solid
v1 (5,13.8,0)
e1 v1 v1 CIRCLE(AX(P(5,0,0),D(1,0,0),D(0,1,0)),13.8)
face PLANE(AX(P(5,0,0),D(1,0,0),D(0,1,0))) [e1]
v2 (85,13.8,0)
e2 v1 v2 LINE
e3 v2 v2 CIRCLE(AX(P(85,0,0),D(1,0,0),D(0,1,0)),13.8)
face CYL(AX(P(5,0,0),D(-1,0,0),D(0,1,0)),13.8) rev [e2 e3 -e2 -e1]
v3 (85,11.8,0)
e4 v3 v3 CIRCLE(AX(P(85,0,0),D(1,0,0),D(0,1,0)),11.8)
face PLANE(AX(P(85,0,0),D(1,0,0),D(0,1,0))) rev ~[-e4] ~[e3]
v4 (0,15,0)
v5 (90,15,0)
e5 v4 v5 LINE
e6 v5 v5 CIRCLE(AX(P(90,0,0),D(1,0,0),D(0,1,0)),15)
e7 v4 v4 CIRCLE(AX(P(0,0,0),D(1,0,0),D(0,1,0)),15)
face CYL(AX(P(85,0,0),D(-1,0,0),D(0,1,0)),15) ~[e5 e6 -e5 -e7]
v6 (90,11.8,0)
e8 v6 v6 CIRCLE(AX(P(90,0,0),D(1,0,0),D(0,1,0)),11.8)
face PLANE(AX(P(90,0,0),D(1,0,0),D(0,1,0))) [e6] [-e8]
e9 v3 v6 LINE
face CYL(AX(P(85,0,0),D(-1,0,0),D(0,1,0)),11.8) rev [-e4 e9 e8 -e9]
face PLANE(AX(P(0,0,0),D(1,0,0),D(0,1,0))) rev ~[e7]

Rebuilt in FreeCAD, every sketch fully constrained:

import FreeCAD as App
import Part
import Sketcher
Q = App.Units.Quantity

doc = App.newDocument("Part")
body = doc.addObject("PartDesign::Body", "Body")

sketch1 = body.newObject("Sketcher::SketchObject", "Sketch")
sketch1.AttachmentSupport = (doc.getObject("YZ_Plane"), [""])
sketch1.MapMode = "FlatFace"
sketch1.addGeometry(Part.Circle(App.Vector(0, 0, 0), App.Vector(0, 0, 1), 15), False)
sketch1.addConstraint([
    Sketcher.Constraint("Coincident", 0, 3, -1, 1),
    Sketcher.Constraint("Diameter", 0, Q("30 mm")),
])
pad1 = body.newObject("PartDesign::Pad", "Pad")
pad1.Profile = sketch1
pad1.Length = 5

sketch2 = body.newObject("Sketcher::SketchObject", "Sketch001")
sketch2.AttachmentSupport = (doc.getObject("YZ_Plane"), [""])
sketch2.MapMode = "FlatFace"
sketch2.AttachmentOffset = App.Placement(App.Vector(0, 0, 5), App.Rotation())
sketch2.addGeometry([
    Part.Circle(App.Vector(0, 0, 0), App.Vector(0, 0, 1), 15),
    Part.Circle(App.Vector(0, 0, 0), App.Vector(0, 0, 1), 14),
], False)
sketch2.addConstraint([
    Sketcher.Constraint("Coincident", 0, 3, -1, 1),
    Sketcher.Constraint("Coincident", 1, 3, -1, 1),
    Sketcher.Constraint("Diameter", 0, Q("30 mm")),
    Sketcher.Constraint("Diameter", 1, Q("27.6 mm")),
])
pad2 = body.newObject("PartDesign::Pad", "Pad001")
pad2.Profile = sketch2
pad2.Length = 80

sketch3 = body.newObject("Sketcher::SketchObject", "Sketch002")
sketch3.AttachmentSupport = (doc.getObject("YZ_Plane"), [""])
sketch3.MapMode = "FlatFace"
sketch3.AttachmentOffset = App.Placement(App.Vector(0, 0, 85), App.Rotation())
sketch3.addGeometry([
    Part.Circle(App.Vector(0, 0, 0), App.Vector(0, 0, 1), 15),
    Part.Circle(App.Vector(0, 0, 0), App.Vector(0, 0, 1), 12),
], False)
sketch3.addConstraint([
    Sketcher.Constraint("Coincident", 0, 3, -1, 1),
    Sketcher.Constraint("Coincident", 1, 3, -1, 1),
    Sketcher.Constraint("Diameter", 0, Q("30 mm")),
    Sketcher.Constraint("Diameter", 1, Q("23.6 mm")),
])
pad3 = body.newObject("PartDesign::Pad", "Pad002")
pad3.Profile = sketch3
pad3.Length = 5

doc.recompute()
